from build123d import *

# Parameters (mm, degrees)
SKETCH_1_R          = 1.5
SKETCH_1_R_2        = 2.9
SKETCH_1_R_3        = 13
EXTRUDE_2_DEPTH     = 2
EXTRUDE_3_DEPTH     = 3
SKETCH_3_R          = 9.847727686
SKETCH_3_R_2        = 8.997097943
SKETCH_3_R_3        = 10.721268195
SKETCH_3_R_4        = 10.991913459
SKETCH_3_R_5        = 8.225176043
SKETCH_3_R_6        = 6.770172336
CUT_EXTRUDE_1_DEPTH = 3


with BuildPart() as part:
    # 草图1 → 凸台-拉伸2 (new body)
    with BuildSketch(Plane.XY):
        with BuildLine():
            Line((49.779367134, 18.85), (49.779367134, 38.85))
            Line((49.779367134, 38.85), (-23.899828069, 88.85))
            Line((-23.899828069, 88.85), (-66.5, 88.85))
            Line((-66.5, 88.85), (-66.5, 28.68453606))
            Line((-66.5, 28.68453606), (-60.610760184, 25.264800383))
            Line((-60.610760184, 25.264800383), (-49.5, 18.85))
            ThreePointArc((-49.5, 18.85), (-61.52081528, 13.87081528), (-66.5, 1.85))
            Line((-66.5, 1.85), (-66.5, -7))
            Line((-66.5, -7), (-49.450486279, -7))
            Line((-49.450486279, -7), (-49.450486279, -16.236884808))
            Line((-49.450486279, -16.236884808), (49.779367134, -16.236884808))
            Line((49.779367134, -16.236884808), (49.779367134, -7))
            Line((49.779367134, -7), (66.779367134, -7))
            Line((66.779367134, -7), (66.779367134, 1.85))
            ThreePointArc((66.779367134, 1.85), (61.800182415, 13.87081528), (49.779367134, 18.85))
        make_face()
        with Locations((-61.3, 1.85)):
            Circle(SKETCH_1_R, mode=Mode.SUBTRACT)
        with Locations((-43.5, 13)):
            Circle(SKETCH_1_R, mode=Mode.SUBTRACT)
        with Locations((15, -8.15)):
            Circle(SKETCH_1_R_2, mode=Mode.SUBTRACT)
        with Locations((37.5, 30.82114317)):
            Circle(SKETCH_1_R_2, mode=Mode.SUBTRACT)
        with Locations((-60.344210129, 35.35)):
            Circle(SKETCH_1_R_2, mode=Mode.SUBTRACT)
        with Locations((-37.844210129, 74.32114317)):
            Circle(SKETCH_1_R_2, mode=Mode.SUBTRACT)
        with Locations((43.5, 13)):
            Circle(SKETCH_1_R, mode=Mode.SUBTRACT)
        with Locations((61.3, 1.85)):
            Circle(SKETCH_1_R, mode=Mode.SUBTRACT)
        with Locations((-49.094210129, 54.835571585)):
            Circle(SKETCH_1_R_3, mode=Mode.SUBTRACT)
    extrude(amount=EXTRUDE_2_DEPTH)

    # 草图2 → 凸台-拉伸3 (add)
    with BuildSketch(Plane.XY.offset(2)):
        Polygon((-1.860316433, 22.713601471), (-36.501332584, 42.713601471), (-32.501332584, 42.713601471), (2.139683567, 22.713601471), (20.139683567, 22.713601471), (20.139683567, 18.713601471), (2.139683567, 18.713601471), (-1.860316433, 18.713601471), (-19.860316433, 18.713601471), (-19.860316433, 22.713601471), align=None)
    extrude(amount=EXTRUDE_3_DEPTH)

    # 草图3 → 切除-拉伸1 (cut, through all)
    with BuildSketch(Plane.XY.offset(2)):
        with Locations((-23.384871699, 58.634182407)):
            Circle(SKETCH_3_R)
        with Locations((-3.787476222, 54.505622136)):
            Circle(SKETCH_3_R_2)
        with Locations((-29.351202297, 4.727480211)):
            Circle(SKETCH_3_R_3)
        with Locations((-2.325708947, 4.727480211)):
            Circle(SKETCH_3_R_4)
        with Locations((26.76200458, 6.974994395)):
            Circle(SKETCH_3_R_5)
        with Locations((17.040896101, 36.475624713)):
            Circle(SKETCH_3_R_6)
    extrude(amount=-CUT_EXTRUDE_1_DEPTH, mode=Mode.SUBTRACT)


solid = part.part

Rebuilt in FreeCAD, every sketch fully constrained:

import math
import FreeCAD as App
import Part
import Sketcher
Q = App.Units.Quantity

doc = App.newDocument("Part")
params = doc.addObject("Spreadsheet::Sheet", "Params")
for row, (alias, value) in enumerate([
    ("sketch1_diameter", "3 mm"),
    ("sketch1_diameter2", "26 mm"),
    ("sketch1_radius", "17 mm"),
    ("sketch1_diameter3", "5.8 mm"),
    ("sketch1_height", "20 mm"),
    ("pad1_length", "2 mm"),
    ("sketch2_width", "18 mm"),
    ("sketch2_width2", "40 mm"),
    ("sketch2_length", "40 mm"),
    ("pad2_length", "3 mm"),
], start=1):
    params.set(f"A{row}", alias)
    params.set(f"B{row}", "=" + value)
    params.setAlias(f"B{row}", alias)

body = doc.addObject("PartDesign::Body", "Body")

# Sketch on XY plane
sketch1 = doc.addObject("Sketcher::SketchObject", "Sketch")
body.addObject(sketch1)
sketch1.AttachmentSupport = (doc.XY_Plane, [""])
sketch1.MapMode = "FlatFace"
sketch1.addGeometry([
    Part.LineSegment(App.Vector(49.8, 18.9, 0), App.Vector(49.8, 38.9, 0)),  # 0
    Part.LineSegment(App.Vector(49.8, 38.9, 0), App.Vector(-23.9, 88.8, 0)),  # 1
    Part.LineSegment(App.Vector(-23.9, 88.8, 0), App.Vector(-66.5, 88.8, 0)),  # 2
    Part.LineSegment(App.Vector(-66.5, 88.8, 0), App.Vector(-66.5, 28.7, 0)),  # 3
    Part.LineSegment(App.Vector(-66.5, 28.7, 0), App.Vector(-60.6, 25.3, 0)),  # 4
    Part.LineSegment(App.Vector(-60.6, 25.3, 0), App.Vector(-49.5, 18.9, 0)),  # 5
    Part.ArcOfCircle(Part.Circle(App.Vector(-49.5, 1.8, 0), App.Vector(0, 0, 1), 17), math.radians(90), math.radians(180)),  # 6
    Part.LineSegment(App.Vector(-66.5, 1.9, 0), App.Vector(-66.5, -7, 0)),  # 7
    Part.LineSegment(App.Vector(-66.5, -7, 0), App.Vector(-49.5, -7, 0)),  # 8
    Part.LineSegment(App.Vector(-49.5, -7, 0), App.Vector(-49.5, -16.2, 0)),  # 9
    Part.LineSegment(App.Vector(-49.5, -16.2, 0), App.Vector(49.8, -16.2, 0)),  # 10
    Part.LineSegment(App.Vector(49.8, -16.2, 0), App.Vector(49.8, -7, 0)),  # 11
    Part.LineSegment(App.Vector(49.8, -7, 0), App.Vector(66.8, -7, 0)),  # 12
    Part.LineSegment(App.Vector(66.8, -7, 0), App.Vector(66.8, 1.9, 0)),  # 13
    Part.ArcOfCircle(Part.Circle(App.Vector(49.8, 1.9, 0), App.Vector(0, 0, 1), 17), math.radians(0), math.radians(90)),  # 14
    Part.Circle(App.Vector(-61.3, 1.9, 0), App.Vector(0, 0, 1), 1.5),  # 15
    Part.Circle(App.Vector(-43.5, 13, 0), App.Vector(0, 0, 1), 1.5),  # 16
    Part.Circle(App.Vector(15, -8.2, 0), App.Vector(0, 0, 1), 2.9),  # 17
    Part.Circle(App.Vector(61.3, 1.9, 0), App.Vector(0, 0, 1), 1.5),  # 18
    Part.Circle(App.Vector(43.5, 13, 0), App.Vector(0, 0, 1), 1.5),  # 19
    Part.Circle(App.Vector(37.5, 30.8, 0), App.Vector(0, 0, 1), 2.9),  # 20
    Part.Circle(App.Vector(-60.3, 35.4, 0), App.Vector(0, 0, 1), 2.9),  # 21
    Part.Circle(App.Vector(-49.1, 54.8, 0), App.Vector(0, 0, 1), 13),  # 22
    Part.Circle(App.Vector(-37.8, 74.3, 0), App.Vector(0, 0, 1), 2.9),  # 23
], False)
sketch1.addConstraint([
    Sketcher.Constraint("Coincident", 0, 2, 1, 1),
    Sketcher.Constraint("Coincident", 1, 2, 2, 1),
    Sketcher.Constraint("Coincident", 2, 2, 3, 1),
    Sketcher.Constraint("Coincident", 3, 2, 4, 1),
    Sketcher.Constraint("Coincident", 4, 2, 5, 1),
    Sketcher.Constraint("Coincident", 5, 2, 6, 1),
    Sketcher.Constraint("Tangent", 6, 2, 7, 1),
    Sketcher.Constraint("Coincident", 7, 2, 8, 1),
    Sketcher.Constraint("Coincident", 8, 2, 9, 1),
    Sketcher.Constraint("Coincident", 9, 2, 10, 1),
    Sketcher.Constraint("Coincident", 10, 2, 11, 1),
    Sketcher.Constraint("Coincident", 11, 2, 12, 1),
    Sketcher.Constraint("Coincident", 12, 2, 13, 1),
    Sketcher.Constraint("Tangent", 13, 2, 14, 1),
    Sketcher.Constraint("Coincident", 14, 2, 0, 1),
    Sketcher.Constraint("Vertical", 0),
    Sketcher.Constraint("Horizontal", 2),
    Sketcher.Constraint("Vertical", 3),
    Sketcher.Constraint("Vertical", 7),
    Sketcher.Constraint("Horizontal", 8),
    Sketcher.Constraint("Vertical", 9),
    Sketcher.Constraint("Horizontal", 10),
    Sketcher.Constraint("Vertical", 11),
    Sketcher.Constraint("Horizontal", 12),
    Sketcher.Constraint("Vertical", 13),
    Sketcher.Constraint("Equal", 6, 14),
    Sketcher.Constraint("Equal", 15, 16),
    Sketcher.Constraint("Equal", 16, 18),
    Sketcher.Constraint("Equal", 18, 19),
    Sketcher.Constraint("Equal", 17, 20),
    Sketcher.Constraint("Equal", 20, 21),
    Sketcher.Constraint("Equal", 21, 23),
    Sketcher.Constraint("Symmetric", 15, 3, 18, 3, -2),
    Sketcher.Constraint("Symmetric", 16, 3, 19, 3, -2),
    Sketcher.Constraint("Horizontal", 6, 3, 14, 3),
    Sketcher.Constraint("Horizontal", 14, 3, 15, 3),
    Sketcher.Constraint("Horizontal", 8, 2, 11, 2),
    Sketcher.Constraint("Vertical", 14, 3, 0, 2),
    Sketcher.Constraint("Vertical", 6, 3, 5, 2),
    Sketcher.Constraint("Vertical", 3, 2, 6, 2),
    Sketcher.Constraint("Vertical", 0, 2, 10, 2),
    Sketcher.Constraint("Diameter", 15, Q("3 mm")),
    Sketcher.Constraint("Diameter", 22, Q("26 mm")),
    Sketcher.Constraint("Radius", 6, Q("17 mm")),
    Sketcher.Constraint("Diameter", 17, Q("5.8 mm")),
    Sketcher.Constraint("DistanceY", 0, 1, 0, 2, Q("20 mm")),
    Sketcher.Constraint("Angle", 5, Q("-30 deg")),
    Sketcher.Constraint("DistanceY", -1, 1, 16, 3, Q("13 mm")),
    Sketcher.Constraint("DistanceX", -1, 1, 17, 3, Q("15 mm")),
    Sketcher.Constraint("DistanceY", 7, 2, -1, 1, Q("7 mm")),
    Sketcher.Constraint("DistanceX", 6, 3, 16, 3, Q("6 mm")),
    Sketcher.Constraint("DistanceY", 17, 3, 14, 3, Q("10 mm")),
    Sketcher.Constraint("DistanceX", 16, 3, 19, 3, Q("87 mm")),
    Sketcher.Constraint("DistanceX", 20, 3, 19, 3, Q("6 mm")),
    Sketcher.Constraint("DistanceY", 7, 2, 7, 1, Q("8.85 mm")),
    Sketcher.Constraint("DistanceX", 15, 3, -1, 1, Q("61.3 mm")),
    Sketcher.Constraint("DistanceY", 15, 3, 21, 3, Q("33.5 mm")),
    Sketcher.Constraint("DistanceX", 21, 3, 23, 3, Q("22.5 mm")),
    Sketcher.Constraint("DistanceY", 21, 3, 1, 2, Q("53.5 mm")),
    Sketcher.Constraint("DistanceX", 21, 3, 22, 3, Q("11.25 mm")),
    Sketcher.Constraint("Distance", 5, Q("12.829601 mm")),
    Sketcher.Constraint("DistanceX", 2, 2, 2, 1, Q("42.600172 mm")),
    Sketcher.Constraint("Distance", 1, Q("89.04282 mm")),
    Sketcher.Constraint("Distance", 4, Q("6.81012 mm")),
    Sketcher.Constraint("DistanceX", 8, 1, 8, 2, Q("17.049514 mm")),
    Sketcher.Constraint("DistanceY", 9, 2, 9, 1, Q("9.236885 mm")),
    Sketcher.Constraint("DistanceX", 21, 3, -1, 1, Q("60.34421 mm")),
    Sketcher.Constraint("DistanceY", -1, 1, 22, 3, Q("54.835572 mm")),
    Sketcher.Constraint("DistanceY", 22, 3, 23, 3, Q("19.485572 mm")),
    Sketcher.Constraint("DistanceY", -1, 1, 20, 3, Q("30.821143 mm")),
])
sketch1.setExpression("Constraints[41]", "Params.sketch1_diameter")
sketch1.setExpression("Constraints[42]", "Params.sketch1_diameter2")
sketch1.setExpression("Constraints[43]", "Params.sketch1_radius")
sketch1.setExpression("Constraints[44]", "Params.sketch1_diameter3")
sketch1.setExpression("Constraints[45]", "Params.sketch1_height")
pad1 = doc.addObject("PartDesign::Pad", "Pad")
body.addObject(pad1)
pad1.Profile = sketch1
pad1.setExpression("Length", "Params.pad1_length")

# Sketch on XY plane
sketch2 = doc.addObject("Sketcher::SketchObject", "Sketch001")
body.addObject(sketch2)
sketch2.AttachmentSupport = (doc.XY_Plane, [""])
sketch2.MapMode = "FlatFace"
sketch2.AttachmentOffset = App.Placement(App.Vector(0, 0, 2), App.Rotation())
sketch2.addGeometry([
    Part.LineSegment(App.Vector(-36.5, 42.7, 0), App.Vector(-1.9, 22.7, 0)),  # 0
    Part.LineSegment(App.Vector(-1.9, 22.7, 0), App.Vector(-19.9, 22.7, 0)),  # 1
    Part.LineSegment(App.Vector(-19.9, 22.7, 0), App.Vector(-19.9, 18.7, 0)),  # 2
    Part.LineSegment(App.Vector(-19.9, 18.7, 0), App.Vector(20.1, 18.7, 0)),  # 3
    Part.LineSegment(App.Vector(20.1, 18.7, 0), App.Vector(20.1, 22.7, 0)),  # 4
    Part.LineSegment(App.Vector(20.1, 22.7, 0), App.Vector(2.1, 22.7, 0)),  # 5
    Part.LineSegment(App.Vector(2.1, 22.7, 0), App.Vector(-32.5, 42.7, 0)),  # 6
    Part.LineSegment(App.Vector(-32.5, 42.7, 0), App.Vector(-36.5, 42.7, 0)),  # 7
], False)
sketch2.addConstraint([
    Sketcher.Constraint("Coincident", 0, 2, 1, 1),
    Sketcher.Constraint("Coincident", 1, 2, 2, 1),
    Sketcher.Constraint("Coincident", 2, 2, 3, 1),
    Sketcher.Constraint("Coincident", 3, 2, 4, 1),
    Sketcher.Constraint("Coincident", 4, 2, 5, 1),
    Sketcher.Constraint("Coincident", 5, 2, 6, 1),
    Sketcher.Constraint("Coincident", 6, 2, 7, 1),
    Sketcher.Constraint("Coincident", 7, 2, 0, 1),
    Sketcher.Constraint("Horizontal", 1),
    Sketcher.Constraint("Vertical", 2),
    Sketcher.Constraint("Horizontal", 3),
    Sketcher.Constraint("Vertical", 4),
    Sketcher.Constraint("Horizontal", 5),
    Sketcher.Constraint("Horizontal", 7),
    Sketcher.Constraint("Parallel", 0, 6),
    Sketcher.Constraint("Horizontal", 1, 2, 4, 2),
    Sketcher.Constraint("Equal", 1, 5),
    Sketcher.Constraint("Equal", 7, 2),
    Sketcher.Constraint("DistanceX", 1, 2, 1, 1, Q("18 mm")),
    Sketcher.Constraint("DistanceX", 3, 1, 3, 2, Q("40 mm")),
    Sketcher.Constraint("Angle", 0, Q("-30 deg")),
    Sketcher.Constraint("Distance", 0, Q("40 mm")),
    Sketcher.Constraint("DistanceY", -1, 1, 0, 2, Q("22.713601 mm")),
    Sketcher.Constraint("DistanceX", 0, 2, -1, 1, Q("1.860316 mm")),
])
sketch2.setExpression("Constraints[18]", "Params.sketch2_width")
sketch2.setExpression("Constraints[19]", "Params.sketch2_width2")
sketch2.setExpression("Constraints[21]", "Params.sketch2_length")
pad2 = doc.addObject("PartDesign::Pad", "Pad001")
body.addObject(pad2)
pad2.Profile = sketch2
pad2.setExpression("Length", "Params.pad2_length")

# Sketch on XY plane
sketch3 = doc.addObject("Sketcher::SketchObject", "Sketch002")
body.addObject(sketch3)
sketch3.AttachmentSupport = (doc.XY_Plane, [""])
sketch3.MapMode = "FlatFace"
sketch3.AttachmentOffset = App.Placement(App.Vector(0, 0, 2), App.Rotation())
sketch3.addGeometry([
    Part.Circle(App.Vector(-23, 59, 0), App.Vector(0, 0, 1), 10),  # 0
    Part.Circle(App.Vector(-4, 55, 0), App.Vector(0, 0, 1), 9),  # 1
    Part.Circle(App.Vector(-29, 5, 0), App.Vector(0, 0, 1), 11),  # 2
    Part.Circle(App.Vector(-2, 5, 0), App.Vector(0, 0, 1), 11),  # 3
    Part.Circle(App.Vector(27, 7, 0), App.Vector(0, 0, 1), 8),  # 4
    Part.Circle(App.Vector(17, 36, 0), App.Vector(0, 0, 1), 7),  # 5
], False)
sketch3.addConstraint([
    Sketcher.Constraint("Horizontal", 2, 3, 3, 3),
    Sketcher.Constraint("Diameter", 0, Q("19.695455 mm")),
    Sketcher.Constraint("Diameter", 1, Q("17.994196 mm")),
    Sketcher.Constraint("Diameter", 2, Q("21.442536 mm")),
    Sketcher.Constraint("Diameter", 3, Q("21.983827 mm")),
    Sketcher.Constraint("Diameter", 4, Q("16.450352 mm")),
    Sketcher.Constraint("Diameter", 5, Q("13.540345 mm")),
    Sketcher.Constraint("DistanceX", 2, 3, 5, 3, Q("46.392098 mm")),
    Sketcher.Constraint("DistanceX", 0, 3, -1, 1, Q("23.384872 mm")),
    Sketcher.Constraint("DistanceY", -1, 1, 2, 3, Q("4.72748 mm")),
    Sketcher.Constraint("DistanceX", 3, 3, -1, 1, Q("2.325709 mm")),
    Sketcher.Constraint("DistanceY", 1, 3, 0, 3, Q("4.12856 mm")),
    Sketcher.Constraint("DistanceX", 2, 3, 0, 3, Q("5.966331 mm")),
    Sketcher.Constraint("DistanceY", 2, 3, 1, 3, Q("49.778142 mm")),
    Sketcher.Constraint("DistanceX", 1, 3, 4, 3, Q("30.549481 mm")),
    Sketcher.Constraint("DistanceY", 4, 3, 0, 3, Q("51.659188 mm")),
    Sketcher.Constraint("DistanceX", 5, 3, 4, 3, Q("9.721108 mm")),
    Sketcher.Constraint("DistanceY", 4, 3, 5, 3, Q("29.50063 mm")),
])
pocket1 = doc.addObject("PartDesign::Pocket", "Pocket")
body.addObject(pocket1)
pocket1.Profile = sketch3
pocket1.Type = "ThroughAll"

doc.recompute()
